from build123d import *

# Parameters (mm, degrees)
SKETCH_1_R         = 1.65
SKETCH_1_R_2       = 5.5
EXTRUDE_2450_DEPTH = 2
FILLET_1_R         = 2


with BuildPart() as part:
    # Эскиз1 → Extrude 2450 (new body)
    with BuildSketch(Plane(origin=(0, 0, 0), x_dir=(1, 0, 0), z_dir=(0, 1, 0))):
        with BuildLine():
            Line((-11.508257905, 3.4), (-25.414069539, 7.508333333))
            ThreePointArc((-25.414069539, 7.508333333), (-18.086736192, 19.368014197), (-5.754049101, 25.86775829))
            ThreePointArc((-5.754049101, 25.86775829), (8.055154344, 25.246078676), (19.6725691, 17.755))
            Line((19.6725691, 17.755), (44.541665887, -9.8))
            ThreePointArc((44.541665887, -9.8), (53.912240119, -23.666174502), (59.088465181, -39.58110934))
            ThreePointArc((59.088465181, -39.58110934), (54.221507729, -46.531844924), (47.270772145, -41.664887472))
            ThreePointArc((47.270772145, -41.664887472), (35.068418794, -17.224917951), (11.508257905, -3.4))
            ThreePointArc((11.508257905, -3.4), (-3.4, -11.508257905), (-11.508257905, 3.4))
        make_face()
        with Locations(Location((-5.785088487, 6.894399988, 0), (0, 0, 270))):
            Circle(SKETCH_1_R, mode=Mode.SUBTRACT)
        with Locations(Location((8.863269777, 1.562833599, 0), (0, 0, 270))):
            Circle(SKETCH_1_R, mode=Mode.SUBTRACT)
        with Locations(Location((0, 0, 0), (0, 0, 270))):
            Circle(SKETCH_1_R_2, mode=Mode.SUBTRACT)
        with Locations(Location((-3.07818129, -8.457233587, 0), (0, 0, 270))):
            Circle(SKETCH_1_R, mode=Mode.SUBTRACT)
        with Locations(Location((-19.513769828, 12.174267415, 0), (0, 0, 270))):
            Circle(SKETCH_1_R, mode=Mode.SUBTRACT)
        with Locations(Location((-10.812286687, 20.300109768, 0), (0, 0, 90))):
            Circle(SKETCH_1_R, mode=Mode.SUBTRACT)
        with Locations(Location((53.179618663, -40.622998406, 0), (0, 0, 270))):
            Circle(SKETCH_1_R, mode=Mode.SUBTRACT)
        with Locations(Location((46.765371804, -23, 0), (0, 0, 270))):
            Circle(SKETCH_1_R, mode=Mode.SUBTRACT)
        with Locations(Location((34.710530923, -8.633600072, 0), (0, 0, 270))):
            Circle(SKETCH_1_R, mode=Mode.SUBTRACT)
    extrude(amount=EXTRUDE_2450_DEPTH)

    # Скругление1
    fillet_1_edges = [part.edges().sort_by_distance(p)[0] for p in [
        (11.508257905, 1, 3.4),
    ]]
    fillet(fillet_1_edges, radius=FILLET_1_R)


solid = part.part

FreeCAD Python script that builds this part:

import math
import FreeCAD as App
import Part
import Sketcher
from FreeCAD import Vector


def edges_at(feature, points):
    """Names of the edges that pass closest to the given points."""
    edges = feature.Shape.Edges
    near = lambda p: min(range(len(edges)), key=lambda i: edges[i].distToShape(Part.Vertex(*p))[0])
    return sorted({f"Edge{near(p) + 1}" for p in points})

doc = App.newDocument("Part")
body = doc.addObject("PartDesign::Body", "Body")

sketch1 = body.newObject("Sketcher::SketchObject", "Sketch")
sketch1.AttachmentSupport = (doc.getObject("XZ_Plane"), [""])
sketch1.MapMode = "FlatFace"
sketch1.addGeometry(Part.LineSegment(Vector(-25.4, -7.5, 0), Vector(-11.5, -3.4, 0)), False)
sketch1.addGeometry(Part.ArcOfCircle(Part.Circle(Vector(0, 0, 0), Vector(0, 0, 1), 12), math.radians(16), math.radians(196)), False)
sketch1.addGeometry(Part.ArcOfCircle(Part.Circle(Vector(0, 50, 0), Vector(0, 0, 1), 48), math.radians(-76), math.radians(-10)), False)
sketch1.addGeometry(Part.ArcOfCircle(Part.Circle(Vector(53.2, 40.6, 0), Vector(0, 0, 1), 6), math.radians(-10), math.radians(170)), False)
sketch1.addGeometry(Part.ArcOfCircle(Part.Circle(Vector(0, 50, 0), Vector(0, 0, 1), 60), math.radians(-42), math.radians(-10)), False)
sketch1.addGeometry(Part.LineSegment(Vector(44.5, 9.8, 0), Vector(19.7, -17.8, 0)), False)
sketch1.addGeometry(Part.ArcOfCircle(Part.Circle(Vector(0, 0, 0), Vector(0, 0, 1), 26.5), math.radians(-103), math.radians(-42)), False)
sketch1.addGeometry(Part.ArcOfCircle(Part.Circle(Vector(0, 0, 0), Vector(0, 0, 1), 26.5), math.radians(-164), math.radians(-103)), False)
sketch1.addGeometry(Part.Circle(Vector(53.2, 40.6, 0), Vector(0, 0, 1), 1.6), False)
sketch1.addGeometry(Part.Circle(Vector(46.8, 23, 0), Vector(0, 0, 1), 1.6), False)
sketch1.addGeometry(Part.Circle(Vector(34.7, 8.6, 0), Vector(0, 0, 1), 1.6), False)
sketch1.addGeometry(Part.Circle(Vector(8.9, -1.6, 0), Vector(0, 0, 1), 1.6), False)
sketch1.addGeometry(Part.Circle(Vector(0, 0, 0), Vector(0, 0, 1), 5.5), False)
sketch1.addGeometry(Part.Circle(Vector(-3.1, 8.5, 0), Vector(0, 0, 1), 1.6), False)
sketch1.addGeometry(Part.Circle(Vector(-5.8, -6.9, 0), Vector(0, 0, 1), 1.6), False)
sketch1.addGeometry(Part.Circle(Vector(-19.5, -12.2, 0), Vector(0, 0, 1), 1.6), False)
sketch1.addGeometry(Part.Circle(Vector(-10.8, -20.3, 0), Vector(0, 0, 1), 1.6), False)
sketch1.addConstraint(Sketcher.Constraint("Coincident", 0, 2, 1, 2))
sketch1.addConstraint(Sketcher.Constraint("Coincident", 1, 1, 2, 1))
sketch1.addConstraint(Sketcher.Constraint("Tangent", 2, 2, 3, 2))
sketch1.addConstraint(Sketcher.Constraint("Tangent", 3, 1, 4, 2))
sketch1.addConstraint(Sketcher.Constraint("Tangent", 4, 1, 5, 1))
sketch1.addConstraint(Sketcher.Constraint("Tangent", 5, 2, 6, 2))
sketch1.addConstraint(Sketcher.Constraint("Tangent", 6, 1, 7, 2))
sketch1.addConstraint(Sketcher.Constraint("Coincident", 7, 1, 0, 1))
sketch1.addConstraint(Sketcher.Constraint("Coincident", 1, 3, -1, 1))
sketch1.addConstraint(Sketcher.Constraint("Coincident", 6, 3, -1, 1))
sketch1.addConstraint(Sketcher.Constraint("Coincident", 12, 3, -1, 1))
sketch1.addConstraint(Sketcher.Constraint("Coincident", 4, 3, 2, 3))
sketch1.addConstraint(Sketcher.Constraint("Coincident", 8, 3, 3, 3))
sketch1.addConstraint(Sketcher.Constraint("Equal", 6, 7))
sketch1.addConstraint(Sketcher.Constraint("Equal", 8, 9))
sketch1.addConstraint(Sketcher.Constraint("Equal", 9, 10))
sketch1.addConstraint(Sketcher.Constraint("Equal", 10, 11))
sketch1.addConstraint(Sketcher.Constraint("Equal", 11, 13))
sketch1.addConstraint(Sketcher.Constraint("Equal", 13, 14))
sketch1.addConstraint(Sketcher.Constraint("Equal", 14, 15))
sketch1.addConstraint(Sketcher.Constraint("Equal", 15, 16))
sketch1.addConstraint(Sketcher.Constraint("PointOnObject", 2, 3, -2))
sketch1.addConstraint(Sketcher.Constraint("Diameter", 12, 11.0))
sketch1.addConstraint(Sketcher.Constraint("Radius", 1, 12.0))
sketch1.addConstraint(Sketcher.Constraint("Radius", 2, 48.0))
sketch1.addConstraint(Sketcher.Constraint("Radius", 3, 6.0))
sketch1.addConstraint(Sketcher.Constraint("Diameter", 8, 3.3))
sketch1.addConstraint(Sketcher.Constraint("Radius", 6, 26.5))
sketch1.addConstraint(Sketcher.Constraint("DistanceY", -1, 1, 2, 3, 50.0))
sketch1.addConstraint(Sketcher.Constraint("DistanceY", -1, 1, 9, 3, 23.0))
sketch1.addConstraint(Sketcher.Constraint("DistanceY", 0, 2, -1, 1, 3.4))
sketch1.addConstraint(Sketcher.Constraint("DistanceY", -1, 1, 3, 3, 40.622998))
sketch1.addConstraint(Sketcher.Constraint("DistanceY", -1, 1, 10, 3, 8.6336))
sketch1.addConstraint(Sketcher.Constraint("DistanceY", 14, 3, -1, 1, 6.8944))
sketch1.addConstraint(Sketcher.Constraint("DistanceX", 16, 3, 14, 3, 5.027198))
sketch1.addConstraint(Sketcher.Constraint("DistanceX", 9, 3, 2, 2, 0.5054))
sketch1.addConstraint(Sketcher.Constraint("DistanceX", 11, 3, 5, 2, 10.809299))
sketch1.addConstraint(Sketcher.Constraint("DistanceX", 7, 1, 15, 3, 5.9003))
sketch1.addConstraint(Sketcher.Constraint("DistanceX", -1, 1, 10, 3, 34.710531))
sketch1.addConstraint(Sketcher.Constraint("DistanceX", 13, 3, -1, 1, 3.078181))
sketch1.addConstraint(Sketcher.Constraint("DistanceX", 14, 3, -1, 1, 5.785088))
sketch1.addConstraint(Sketcher.Constraint("DistanceX", 15, 3, -1, 1, 19.51377))
sketch1.addConstraint(Sketcher.Constraint("DistanceY", 16, 3, -1, 1, 20.30011))
sketch1.addConstraint(Sketcher.Constraint("DistanceX", 6, 1, -1, 1, 5.754049))
sketch1.addConstraint(Sketcher.Constraint("DistanceY", 6, 1, 15, 3, 13.693491))
sketch1.addConstraint(Sketcher.Constraint("DistanceY", 11, 3, -1, 1, 1.562834))
sketch1.addConstraint(Sketcher.Constraint("DistanceY", -1, 1, 13, 3, 8.457234))
pad1 = body.newObject("PartDesign::Pad", "Pad")
pad1.Profile = sketch1
pad1.Length = 2
pad1.Reversed = True
doc.recompute()

fillet = body.newObject("PartDesign::Fillet", "Fillet")
fillet.Base = (pad1, edges_at(pad1, [(11.508, 1, 3.4)]))
fillet.Radius = 2

doc.recompute()
